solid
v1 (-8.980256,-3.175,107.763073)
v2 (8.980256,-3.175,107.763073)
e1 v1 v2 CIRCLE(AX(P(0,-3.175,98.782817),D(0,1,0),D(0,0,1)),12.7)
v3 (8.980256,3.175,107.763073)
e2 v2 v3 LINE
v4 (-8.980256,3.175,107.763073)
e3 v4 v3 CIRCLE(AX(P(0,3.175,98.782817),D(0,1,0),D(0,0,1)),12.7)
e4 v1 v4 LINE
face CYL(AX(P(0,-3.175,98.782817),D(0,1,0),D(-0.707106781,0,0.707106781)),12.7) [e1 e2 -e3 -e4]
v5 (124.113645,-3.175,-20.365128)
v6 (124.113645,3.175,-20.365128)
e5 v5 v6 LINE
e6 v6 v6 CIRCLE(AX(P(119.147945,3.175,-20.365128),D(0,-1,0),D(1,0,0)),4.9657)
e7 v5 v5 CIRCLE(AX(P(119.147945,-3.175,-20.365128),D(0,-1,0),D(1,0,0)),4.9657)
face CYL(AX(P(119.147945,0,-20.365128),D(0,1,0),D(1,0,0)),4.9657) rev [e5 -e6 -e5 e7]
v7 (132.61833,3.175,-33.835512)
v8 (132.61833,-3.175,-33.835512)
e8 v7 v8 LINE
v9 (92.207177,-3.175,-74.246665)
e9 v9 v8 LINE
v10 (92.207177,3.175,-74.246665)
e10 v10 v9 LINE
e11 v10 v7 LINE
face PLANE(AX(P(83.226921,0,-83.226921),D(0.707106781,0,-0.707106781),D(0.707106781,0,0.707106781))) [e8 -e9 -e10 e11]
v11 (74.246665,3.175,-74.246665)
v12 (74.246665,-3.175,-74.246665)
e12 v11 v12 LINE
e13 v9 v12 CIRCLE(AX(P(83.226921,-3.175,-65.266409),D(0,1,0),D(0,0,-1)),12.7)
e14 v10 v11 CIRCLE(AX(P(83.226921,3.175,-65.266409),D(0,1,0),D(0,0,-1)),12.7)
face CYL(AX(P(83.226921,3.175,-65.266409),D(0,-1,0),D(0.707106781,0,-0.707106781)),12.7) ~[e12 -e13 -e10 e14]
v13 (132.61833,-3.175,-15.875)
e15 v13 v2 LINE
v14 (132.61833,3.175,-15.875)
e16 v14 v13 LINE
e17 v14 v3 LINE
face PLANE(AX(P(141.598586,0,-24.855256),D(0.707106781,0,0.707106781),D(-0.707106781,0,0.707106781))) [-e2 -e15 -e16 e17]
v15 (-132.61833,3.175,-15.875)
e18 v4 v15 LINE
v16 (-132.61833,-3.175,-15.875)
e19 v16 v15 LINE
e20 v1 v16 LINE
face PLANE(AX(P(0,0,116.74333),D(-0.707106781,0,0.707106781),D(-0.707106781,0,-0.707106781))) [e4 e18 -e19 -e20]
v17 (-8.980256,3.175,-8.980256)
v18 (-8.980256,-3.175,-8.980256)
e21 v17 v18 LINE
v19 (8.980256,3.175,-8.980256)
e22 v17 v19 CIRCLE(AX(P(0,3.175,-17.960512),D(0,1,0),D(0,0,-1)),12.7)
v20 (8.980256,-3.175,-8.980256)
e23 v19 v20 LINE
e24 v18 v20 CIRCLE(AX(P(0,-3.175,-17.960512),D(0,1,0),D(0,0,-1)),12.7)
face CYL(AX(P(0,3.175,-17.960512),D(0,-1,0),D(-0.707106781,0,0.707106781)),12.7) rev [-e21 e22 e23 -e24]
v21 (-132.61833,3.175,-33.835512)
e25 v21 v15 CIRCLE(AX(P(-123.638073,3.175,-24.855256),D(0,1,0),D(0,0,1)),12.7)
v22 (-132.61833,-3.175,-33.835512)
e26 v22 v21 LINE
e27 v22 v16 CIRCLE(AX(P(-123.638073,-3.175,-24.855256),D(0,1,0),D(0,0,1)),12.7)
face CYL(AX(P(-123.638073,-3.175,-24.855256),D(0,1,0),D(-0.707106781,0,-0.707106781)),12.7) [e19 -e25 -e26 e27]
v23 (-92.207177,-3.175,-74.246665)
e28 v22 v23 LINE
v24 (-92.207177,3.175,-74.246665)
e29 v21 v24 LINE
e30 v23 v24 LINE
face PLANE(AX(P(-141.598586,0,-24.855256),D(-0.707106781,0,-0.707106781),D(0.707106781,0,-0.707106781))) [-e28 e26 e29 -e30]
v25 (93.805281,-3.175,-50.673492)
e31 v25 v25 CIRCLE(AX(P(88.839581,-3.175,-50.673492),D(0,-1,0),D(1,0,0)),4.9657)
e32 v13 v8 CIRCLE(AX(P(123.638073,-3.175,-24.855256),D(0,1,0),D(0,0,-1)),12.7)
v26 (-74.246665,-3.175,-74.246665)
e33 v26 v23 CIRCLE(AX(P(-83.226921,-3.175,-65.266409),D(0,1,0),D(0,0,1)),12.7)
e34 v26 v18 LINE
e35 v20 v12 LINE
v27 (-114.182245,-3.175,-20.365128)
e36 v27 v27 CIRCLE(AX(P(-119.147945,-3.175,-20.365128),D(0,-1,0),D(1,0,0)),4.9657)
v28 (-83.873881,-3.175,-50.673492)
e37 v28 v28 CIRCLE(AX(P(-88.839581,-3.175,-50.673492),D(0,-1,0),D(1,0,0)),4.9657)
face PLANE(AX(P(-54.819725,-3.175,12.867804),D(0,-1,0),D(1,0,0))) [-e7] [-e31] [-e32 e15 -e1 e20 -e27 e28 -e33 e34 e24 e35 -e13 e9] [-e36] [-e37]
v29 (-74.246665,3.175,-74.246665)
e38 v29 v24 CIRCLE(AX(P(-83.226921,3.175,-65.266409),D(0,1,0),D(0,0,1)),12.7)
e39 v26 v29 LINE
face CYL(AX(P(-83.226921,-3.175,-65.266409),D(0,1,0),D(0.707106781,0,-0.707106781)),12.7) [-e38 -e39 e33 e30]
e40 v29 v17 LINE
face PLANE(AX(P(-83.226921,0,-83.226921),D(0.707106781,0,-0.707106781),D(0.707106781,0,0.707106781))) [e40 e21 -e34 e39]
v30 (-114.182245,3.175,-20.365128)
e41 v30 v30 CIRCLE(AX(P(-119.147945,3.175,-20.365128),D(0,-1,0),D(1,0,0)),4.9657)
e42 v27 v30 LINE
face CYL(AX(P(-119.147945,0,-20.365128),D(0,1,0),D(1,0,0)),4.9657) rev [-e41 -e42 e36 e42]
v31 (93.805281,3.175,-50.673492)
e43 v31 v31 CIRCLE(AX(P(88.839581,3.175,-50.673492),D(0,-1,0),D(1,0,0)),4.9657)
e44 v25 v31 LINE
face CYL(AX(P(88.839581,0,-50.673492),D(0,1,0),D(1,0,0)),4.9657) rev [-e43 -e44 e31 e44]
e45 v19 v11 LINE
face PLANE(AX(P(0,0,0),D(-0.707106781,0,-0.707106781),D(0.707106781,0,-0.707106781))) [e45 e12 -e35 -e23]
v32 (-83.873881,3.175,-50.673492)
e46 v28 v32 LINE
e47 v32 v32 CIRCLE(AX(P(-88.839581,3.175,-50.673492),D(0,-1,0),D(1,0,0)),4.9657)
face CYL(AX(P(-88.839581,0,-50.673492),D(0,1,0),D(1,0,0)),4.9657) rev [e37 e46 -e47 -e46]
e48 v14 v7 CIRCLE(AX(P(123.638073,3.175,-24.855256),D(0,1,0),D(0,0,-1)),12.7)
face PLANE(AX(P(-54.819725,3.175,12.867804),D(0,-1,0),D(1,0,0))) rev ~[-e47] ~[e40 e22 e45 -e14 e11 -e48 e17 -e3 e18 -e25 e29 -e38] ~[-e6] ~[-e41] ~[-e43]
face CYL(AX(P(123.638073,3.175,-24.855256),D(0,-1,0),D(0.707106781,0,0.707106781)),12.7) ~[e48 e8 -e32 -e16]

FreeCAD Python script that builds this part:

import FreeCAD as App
import Part
import Sketcher
from FreeCAD import Vector
Q = App.Units.Quantity


def edges_at(feature, points):
    """Names of the edges that pass closest to the given points."""
    edges = feature.Shape.Edges
    near = lambda p: min(range(len(edges)), key=lambda i: edges[i].distToShape(Part.Vertex(*p))[0])
    return sorted({f"Edge{near(p) + 1}" for p in points})


def add_polygon(sketch, points):
    """Adds a closed chain of lines whose ends are joined by coincident constraints."""
    first, n = sketch.GeometryCount, len(points)
    for a, b in zip(points, points[1:] + points[:1]):
        sketch.addGeometry(Part.LineSegment(App.Vector(*a, 0), App.Vector(*b, 0)), False)
    for i in range(n):
        sketch.addConstraint(Sketcher.Constraint("Coincident", first + i, 2, first + (i + 1) % n, 1))

doc = App.newDocument("Part")
body = doc.addObject("PartDesign::Body", "Body")

# Sketch on XZ plane
sketch1 = body.newObject("Sketcher::SketchObject", "Sketch")
sketch1.AttachmentSupport = (doc.getObject("XZ_Plane"), [""])
sketch1.MapMode = "FlatFace"
add_polygon(sketch1, [(-83.2, -83.2), (0, 0), (83.2, -83.2), (141.6, -24.9), (0, 116.7), (-141.6, -24.9)])  # lines 0-5
sketch1.addGeometry(Part.Circle(Vector(-88.8, -50.7, 0), Vector(0, 0, 1), 5), False)  # 6
sketch1.addGeometry(Part.Circle(Vector(88.8, -50.7, 0), Vector(0, 0, 1), 5), False)  # 7
sketch1.addGeometry(Part.Circle(Vector(-119.1, -20.4, 0), Vector(0, 0, 1), 5), False)  # 8
sketch1.addGeometry(Part.Circle(Vector(119.1, -20.4, 0), Vector(0, 0, 1), 5), False)  # 9
sketch1.addConstraint([
    Sketcher.Constraint("Coincident", 0, 2, -1, 1),
    Sketcher.Constraint("Equal", 6, 7),
    Sketcher.Constraint("Equal", 7, 8),
    Sketcher.Constraint("Equal", 8, 9),
    Sketcher.Constraint("Symmetric", 6, 3, 7, 3, -2),
    Sketcher.Constraint("Symmetric", 8, 3, 9, 3, -2),
    Sketcher.Constraint("Symmetric", 2, 2, 4, 2, -2),
    Sketcher.Constraint("Symmetric", 1, 2, 5, 2, -2),
    Sketcher.Constraint("PointOnObject", 3, 2, -2),
    Sketcher.Constraint("Perpendicular", 0, 1),
    Sketcher.Constraint("Perpendicular", 1, 2),
    Sketcher.Constraint("Perpendicular", 2, 3),
    Sketcher.Constraint("Diameter", 6, Q("0.391 in")),
    Sketcher.Constraint("Distance", 2, Q("3.25 in")),
    Sketcher.Constraint("DistanceX", 6, 3, 1, 2, Q("172.066502 mm")),
    Sketcher.Constraint("Distance", 0, Q("117.70064 mm")),
    Sketcher.Constraint("DistanceY", 8, 3, -1, 1, Q("20.365128 mm")),
    Sketcher.Constraint("DistanceX", 8, 3, 9, 3, Q("238.295891 mm")),
    Sketcher.Constraint("DistanceY", 1, 2, 7, 3, Q("32.553428 mm")),
])
pad1 = body.newObject("PartDesign::Pad", "Pad")
pad1.Profile = sketch1
pad1.Length = Q("0.25 in")
pad1.Midplane = True
doc.recompute()

fillet = body.newObject("PartDesign::Fillet", "Fillet")
fillet.Base = (pad1, edges_at(pad1, [
    (-141.599, 0, -24.855),
    (0, 0, 116.743),
    (0, 0, 0),
    (83.227, 0, -83.227),
    (141.599, 0, -24.855),
    (-83.227, 0, -83.227),
]))
fillet.Radius = Q("0.5 in")

doc.recompute()
